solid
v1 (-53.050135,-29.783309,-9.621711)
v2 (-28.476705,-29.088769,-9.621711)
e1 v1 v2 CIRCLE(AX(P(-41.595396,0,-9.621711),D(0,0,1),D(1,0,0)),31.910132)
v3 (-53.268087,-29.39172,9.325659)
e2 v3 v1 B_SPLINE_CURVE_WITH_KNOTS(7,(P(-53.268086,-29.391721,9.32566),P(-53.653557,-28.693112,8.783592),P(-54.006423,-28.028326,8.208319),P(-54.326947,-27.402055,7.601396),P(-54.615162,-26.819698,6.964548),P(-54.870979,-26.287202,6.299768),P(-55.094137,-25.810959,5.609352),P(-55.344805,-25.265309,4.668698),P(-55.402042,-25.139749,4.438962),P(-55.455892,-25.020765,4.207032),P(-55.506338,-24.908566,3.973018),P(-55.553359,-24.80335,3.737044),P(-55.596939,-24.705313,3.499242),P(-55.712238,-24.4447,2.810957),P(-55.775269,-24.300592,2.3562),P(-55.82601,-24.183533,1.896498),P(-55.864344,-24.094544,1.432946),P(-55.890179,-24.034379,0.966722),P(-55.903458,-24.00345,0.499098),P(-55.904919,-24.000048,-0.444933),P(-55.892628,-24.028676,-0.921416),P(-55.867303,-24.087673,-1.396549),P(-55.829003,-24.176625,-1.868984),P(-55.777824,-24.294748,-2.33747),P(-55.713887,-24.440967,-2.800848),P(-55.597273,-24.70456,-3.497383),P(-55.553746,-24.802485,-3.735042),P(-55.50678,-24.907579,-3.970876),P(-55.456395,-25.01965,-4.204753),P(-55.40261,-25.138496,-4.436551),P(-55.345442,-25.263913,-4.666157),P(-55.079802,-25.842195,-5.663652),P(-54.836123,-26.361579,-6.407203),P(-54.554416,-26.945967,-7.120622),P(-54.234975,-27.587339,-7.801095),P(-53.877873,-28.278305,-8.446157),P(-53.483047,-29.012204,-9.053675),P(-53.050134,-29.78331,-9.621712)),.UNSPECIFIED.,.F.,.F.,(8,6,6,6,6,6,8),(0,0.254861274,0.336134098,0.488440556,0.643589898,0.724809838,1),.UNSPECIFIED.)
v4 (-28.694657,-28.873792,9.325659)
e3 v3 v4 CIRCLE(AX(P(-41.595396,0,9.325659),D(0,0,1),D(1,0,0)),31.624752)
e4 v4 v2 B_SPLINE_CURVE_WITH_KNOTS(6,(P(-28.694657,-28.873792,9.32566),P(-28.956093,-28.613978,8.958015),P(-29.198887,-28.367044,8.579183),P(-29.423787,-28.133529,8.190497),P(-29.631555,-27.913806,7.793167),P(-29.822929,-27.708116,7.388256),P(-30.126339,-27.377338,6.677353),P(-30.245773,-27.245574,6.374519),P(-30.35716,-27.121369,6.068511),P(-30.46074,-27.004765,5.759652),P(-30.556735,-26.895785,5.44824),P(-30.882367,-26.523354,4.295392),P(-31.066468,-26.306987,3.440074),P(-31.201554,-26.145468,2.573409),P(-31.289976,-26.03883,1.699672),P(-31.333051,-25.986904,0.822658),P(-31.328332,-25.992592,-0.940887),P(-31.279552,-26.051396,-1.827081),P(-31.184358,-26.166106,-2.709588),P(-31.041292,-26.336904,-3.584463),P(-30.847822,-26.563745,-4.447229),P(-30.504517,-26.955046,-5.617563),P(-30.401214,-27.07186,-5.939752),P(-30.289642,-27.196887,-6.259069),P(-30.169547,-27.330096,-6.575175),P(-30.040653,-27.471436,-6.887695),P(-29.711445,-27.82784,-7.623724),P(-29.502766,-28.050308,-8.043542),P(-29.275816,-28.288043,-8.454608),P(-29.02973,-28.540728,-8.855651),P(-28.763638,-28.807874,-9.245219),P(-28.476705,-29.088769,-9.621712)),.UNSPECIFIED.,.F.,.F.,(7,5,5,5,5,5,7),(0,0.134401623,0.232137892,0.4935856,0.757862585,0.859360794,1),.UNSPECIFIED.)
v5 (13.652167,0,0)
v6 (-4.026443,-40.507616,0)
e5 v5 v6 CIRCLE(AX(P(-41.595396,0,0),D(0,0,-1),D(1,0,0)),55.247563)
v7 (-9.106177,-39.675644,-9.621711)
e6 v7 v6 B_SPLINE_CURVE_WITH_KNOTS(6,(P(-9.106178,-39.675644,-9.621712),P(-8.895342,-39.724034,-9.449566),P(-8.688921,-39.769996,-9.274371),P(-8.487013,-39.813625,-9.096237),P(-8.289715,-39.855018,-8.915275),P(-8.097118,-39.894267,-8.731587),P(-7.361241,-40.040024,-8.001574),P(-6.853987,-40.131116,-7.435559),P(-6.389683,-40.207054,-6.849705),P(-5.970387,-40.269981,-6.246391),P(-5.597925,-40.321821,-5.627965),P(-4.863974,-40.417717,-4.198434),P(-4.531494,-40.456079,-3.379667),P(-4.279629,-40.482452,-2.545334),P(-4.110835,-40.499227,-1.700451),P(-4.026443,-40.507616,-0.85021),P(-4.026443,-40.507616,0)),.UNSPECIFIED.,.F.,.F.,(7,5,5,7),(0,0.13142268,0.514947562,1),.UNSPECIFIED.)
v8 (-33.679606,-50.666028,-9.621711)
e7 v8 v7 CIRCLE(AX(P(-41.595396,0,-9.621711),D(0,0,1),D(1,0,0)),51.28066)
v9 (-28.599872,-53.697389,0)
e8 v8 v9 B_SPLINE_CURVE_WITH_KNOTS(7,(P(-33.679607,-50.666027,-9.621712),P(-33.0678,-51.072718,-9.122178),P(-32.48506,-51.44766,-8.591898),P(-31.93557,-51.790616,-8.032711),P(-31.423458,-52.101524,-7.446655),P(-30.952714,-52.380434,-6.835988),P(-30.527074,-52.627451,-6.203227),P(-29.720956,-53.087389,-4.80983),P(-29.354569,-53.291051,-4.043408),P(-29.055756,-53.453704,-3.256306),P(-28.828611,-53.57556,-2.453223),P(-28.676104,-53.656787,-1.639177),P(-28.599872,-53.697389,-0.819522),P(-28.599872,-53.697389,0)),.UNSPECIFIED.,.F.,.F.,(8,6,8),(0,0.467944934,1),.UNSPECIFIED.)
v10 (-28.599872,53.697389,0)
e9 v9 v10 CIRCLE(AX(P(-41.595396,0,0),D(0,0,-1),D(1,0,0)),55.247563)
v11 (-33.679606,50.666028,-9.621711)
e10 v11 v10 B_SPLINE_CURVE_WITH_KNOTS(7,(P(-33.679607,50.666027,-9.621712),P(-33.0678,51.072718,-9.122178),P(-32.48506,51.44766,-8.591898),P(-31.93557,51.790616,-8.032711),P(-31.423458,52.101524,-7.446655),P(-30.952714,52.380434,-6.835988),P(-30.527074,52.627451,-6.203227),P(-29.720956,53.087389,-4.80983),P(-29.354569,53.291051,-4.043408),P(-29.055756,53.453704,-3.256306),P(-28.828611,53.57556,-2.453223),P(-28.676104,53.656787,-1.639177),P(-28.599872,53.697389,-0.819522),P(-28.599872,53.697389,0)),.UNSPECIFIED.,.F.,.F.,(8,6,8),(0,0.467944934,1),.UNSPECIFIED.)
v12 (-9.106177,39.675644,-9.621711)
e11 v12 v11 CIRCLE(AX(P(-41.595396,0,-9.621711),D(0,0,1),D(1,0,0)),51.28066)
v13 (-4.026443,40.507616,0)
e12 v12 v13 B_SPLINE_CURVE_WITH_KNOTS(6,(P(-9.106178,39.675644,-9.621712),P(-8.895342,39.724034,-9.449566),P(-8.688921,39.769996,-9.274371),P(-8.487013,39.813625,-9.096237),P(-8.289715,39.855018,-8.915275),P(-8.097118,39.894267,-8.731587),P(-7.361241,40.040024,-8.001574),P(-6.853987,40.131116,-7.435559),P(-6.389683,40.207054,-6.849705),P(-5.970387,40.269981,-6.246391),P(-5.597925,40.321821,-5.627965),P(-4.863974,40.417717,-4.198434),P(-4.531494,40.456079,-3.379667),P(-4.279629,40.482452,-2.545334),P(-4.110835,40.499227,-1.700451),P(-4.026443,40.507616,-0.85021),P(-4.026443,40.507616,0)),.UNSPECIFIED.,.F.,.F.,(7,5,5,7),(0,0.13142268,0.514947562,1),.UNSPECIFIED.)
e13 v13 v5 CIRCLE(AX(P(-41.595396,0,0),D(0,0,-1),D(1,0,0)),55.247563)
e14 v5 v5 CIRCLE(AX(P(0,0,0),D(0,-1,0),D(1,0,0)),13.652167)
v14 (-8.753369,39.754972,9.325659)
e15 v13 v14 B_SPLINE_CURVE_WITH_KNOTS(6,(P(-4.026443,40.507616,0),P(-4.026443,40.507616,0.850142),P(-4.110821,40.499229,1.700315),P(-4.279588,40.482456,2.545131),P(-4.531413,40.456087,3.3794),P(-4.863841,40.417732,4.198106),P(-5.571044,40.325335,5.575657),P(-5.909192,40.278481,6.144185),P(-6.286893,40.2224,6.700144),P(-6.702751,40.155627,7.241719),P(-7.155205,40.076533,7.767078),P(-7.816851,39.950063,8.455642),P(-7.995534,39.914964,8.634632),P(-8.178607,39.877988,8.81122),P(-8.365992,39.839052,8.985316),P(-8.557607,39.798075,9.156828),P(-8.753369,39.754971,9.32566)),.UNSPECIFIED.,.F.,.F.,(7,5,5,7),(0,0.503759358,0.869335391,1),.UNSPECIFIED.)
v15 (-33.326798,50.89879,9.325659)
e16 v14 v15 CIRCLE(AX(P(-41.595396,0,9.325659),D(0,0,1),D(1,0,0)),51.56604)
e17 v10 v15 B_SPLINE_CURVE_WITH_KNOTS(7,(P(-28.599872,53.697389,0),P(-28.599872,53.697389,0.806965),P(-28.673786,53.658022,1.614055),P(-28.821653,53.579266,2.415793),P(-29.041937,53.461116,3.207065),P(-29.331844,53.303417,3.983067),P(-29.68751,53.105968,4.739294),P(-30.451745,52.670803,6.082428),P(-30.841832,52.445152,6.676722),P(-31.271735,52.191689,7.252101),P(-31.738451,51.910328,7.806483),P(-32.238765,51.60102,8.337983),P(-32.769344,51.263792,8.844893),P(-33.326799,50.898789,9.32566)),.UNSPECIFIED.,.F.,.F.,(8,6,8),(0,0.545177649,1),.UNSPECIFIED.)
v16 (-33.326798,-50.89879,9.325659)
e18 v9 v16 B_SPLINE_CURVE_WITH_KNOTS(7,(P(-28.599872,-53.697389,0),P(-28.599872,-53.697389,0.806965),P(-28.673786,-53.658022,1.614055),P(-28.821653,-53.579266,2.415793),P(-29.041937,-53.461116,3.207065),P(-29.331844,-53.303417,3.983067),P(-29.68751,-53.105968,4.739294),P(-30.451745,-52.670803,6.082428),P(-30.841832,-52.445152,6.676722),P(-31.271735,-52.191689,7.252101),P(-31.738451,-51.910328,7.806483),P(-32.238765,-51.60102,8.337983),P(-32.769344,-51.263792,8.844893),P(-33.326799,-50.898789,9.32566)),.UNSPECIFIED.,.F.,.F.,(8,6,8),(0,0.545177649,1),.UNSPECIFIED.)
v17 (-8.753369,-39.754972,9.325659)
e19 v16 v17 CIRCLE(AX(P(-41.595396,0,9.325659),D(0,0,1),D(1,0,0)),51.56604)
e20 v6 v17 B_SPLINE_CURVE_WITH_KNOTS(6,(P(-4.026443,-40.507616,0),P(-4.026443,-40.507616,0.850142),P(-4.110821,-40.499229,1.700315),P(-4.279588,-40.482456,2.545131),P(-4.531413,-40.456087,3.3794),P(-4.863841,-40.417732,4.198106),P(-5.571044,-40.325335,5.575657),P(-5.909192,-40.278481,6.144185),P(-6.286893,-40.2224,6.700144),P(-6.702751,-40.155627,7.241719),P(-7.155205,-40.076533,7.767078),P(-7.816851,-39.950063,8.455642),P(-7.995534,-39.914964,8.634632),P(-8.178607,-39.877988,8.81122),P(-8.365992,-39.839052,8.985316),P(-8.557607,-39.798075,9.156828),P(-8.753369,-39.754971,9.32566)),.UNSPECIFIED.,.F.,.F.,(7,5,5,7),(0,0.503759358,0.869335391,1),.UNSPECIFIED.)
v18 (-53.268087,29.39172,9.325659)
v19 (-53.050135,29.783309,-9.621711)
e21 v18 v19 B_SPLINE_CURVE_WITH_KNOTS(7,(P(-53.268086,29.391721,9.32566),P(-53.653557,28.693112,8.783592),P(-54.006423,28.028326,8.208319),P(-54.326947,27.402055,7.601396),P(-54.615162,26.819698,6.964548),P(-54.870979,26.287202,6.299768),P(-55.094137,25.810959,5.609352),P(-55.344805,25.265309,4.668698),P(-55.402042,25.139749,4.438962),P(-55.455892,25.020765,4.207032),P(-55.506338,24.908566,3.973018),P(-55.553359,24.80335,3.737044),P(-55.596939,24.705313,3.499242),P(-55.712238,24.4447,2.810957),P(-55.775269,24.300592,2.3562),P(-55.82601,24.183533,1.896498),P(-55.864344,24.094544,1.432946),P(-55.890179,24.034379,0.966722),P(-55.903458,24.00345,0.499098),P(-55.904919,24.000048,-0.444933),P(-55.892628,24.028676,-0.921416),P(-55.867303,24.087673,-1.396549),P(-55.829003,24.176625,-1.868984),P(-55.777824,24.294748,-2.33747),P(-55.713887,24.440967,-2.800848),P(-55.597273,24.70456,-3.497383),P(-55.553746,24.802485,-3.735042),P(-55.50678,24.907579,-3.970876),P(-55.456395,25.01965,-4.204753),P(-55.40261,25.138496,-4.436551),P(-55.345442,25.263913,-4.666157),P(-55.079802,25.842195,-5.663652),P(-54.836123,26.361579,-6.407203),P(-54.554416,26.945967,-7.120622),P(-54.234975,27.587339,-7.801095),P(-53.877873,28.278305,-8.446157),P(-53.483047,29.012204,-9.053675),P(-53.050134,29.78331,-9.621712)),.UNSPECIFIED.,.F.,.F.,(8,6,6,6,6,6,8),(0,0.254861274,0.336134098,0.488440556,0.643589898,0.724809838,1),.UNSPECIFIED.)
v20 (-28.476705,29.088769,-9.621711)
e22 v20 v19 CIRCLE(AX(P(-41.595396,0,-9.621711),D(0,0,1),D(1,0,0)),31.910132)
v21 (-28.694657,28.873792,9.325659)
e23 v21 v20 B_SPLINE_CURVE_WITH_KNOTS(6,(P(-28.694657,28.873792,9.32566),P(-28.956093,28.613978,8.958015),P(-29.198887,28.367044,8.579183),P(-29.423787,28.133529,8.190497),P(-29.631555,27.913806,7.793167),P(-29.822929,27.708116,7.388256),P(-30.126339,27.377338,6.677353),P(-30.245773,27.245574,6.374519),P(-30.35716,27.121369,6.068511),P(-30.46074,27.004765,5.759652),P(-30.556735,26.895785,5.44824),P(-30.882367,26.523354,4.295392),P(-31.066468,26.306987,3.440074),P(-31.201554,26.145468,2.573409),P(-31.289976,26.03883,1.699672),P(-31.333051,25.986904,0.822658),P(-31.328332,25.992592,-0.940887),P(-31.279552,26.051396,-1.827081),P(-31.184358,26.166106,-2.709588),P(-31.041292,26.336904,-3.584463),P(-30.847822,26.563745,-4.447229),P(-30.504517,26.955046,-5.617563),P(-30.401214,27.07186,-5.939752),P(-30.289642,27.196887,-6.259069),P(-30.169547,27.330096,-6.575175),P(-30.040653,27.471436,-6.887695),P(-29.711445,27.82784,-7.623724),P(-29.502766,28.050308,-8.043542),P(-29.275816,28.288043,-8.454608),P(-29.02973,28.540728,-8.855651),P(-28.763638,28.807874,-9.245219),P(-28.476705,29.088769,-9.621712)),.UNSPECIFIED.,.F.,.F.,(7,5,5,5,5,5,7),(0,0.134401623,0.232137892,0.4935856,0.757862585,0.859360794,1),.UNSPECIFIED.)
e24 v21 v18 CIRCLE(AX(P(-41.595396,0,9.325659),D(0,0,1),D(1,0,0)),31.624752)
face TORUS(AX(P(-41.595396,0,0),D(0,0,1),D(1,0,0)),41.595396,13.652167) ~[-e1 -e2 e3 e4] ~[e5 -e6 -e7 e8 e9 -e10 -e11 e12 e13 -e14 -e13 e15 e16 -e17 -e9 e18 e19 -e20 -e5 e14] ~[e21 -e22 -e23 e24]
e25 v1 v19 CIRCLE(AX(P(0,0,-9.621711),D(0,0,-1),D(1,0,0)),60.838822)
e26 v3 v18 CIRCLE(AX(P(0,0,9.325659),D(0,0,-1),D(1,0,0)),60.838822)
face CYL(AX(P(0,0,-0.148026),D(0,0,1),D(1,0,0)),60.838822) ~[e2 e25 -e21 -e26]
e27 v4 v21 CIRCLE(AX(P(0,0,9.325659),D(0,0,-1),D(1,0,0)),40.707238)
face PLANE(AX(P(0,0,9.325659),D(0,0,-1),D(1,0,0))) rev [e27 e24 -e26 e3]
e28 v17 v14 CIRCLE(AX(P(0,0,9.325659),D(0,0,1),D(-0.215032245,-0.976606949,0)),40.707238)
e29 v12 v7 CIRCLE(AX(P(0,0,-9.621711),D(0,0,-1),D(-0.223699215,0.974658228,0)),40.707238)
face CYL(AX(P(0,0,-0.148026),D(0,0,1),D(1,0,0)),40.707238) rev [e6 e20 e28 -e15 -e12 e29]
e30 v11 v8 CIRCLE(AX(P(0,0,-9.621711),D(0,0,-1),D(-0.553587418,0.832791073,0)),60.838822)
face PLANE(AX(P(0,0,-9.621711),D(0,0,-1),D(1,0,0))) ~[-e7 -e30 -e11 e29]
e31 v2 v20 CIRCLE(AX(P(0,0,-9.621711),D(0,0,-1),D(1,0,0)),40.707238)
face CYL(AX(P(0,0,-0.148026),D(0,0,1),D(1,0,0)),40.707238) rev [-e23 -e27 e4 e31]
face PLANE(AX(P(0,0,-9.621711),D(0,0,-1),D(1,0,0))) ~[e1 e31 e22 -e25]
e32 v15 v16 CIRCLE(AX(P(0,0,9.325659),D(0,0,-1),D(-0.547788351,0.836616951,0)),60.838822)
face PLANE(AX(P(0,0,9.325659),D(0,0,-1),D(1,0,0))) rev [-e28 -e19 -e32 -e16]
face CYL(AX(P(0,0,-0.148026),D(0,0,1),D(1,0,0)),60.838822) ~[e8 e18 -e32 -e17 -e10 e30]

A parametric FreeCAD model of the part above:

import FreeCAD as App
import Part
import Sketcher
from FreeCAD import Vector
Q = App.Units.Quantity

doc = App.newDocument("Part")
body = doc.addObject("PartDesign::Body", "Body")

# Sketch on XZ plane
sketch1 = body.newObject("Sketcher::SketchObject", "Sketch")
sketch1.AttachmentSupport = (doc.getObject("XZ_Plane"), [""])
sketch1.MapMode = "FlatFace"
sketch1.addGeometry([
    Part.LineSegment(Vector(40.707238, 9.325659, 0), Vector(40.707238, -9.621711, 0)),
    Part.LineSegment(Vector(40.707238, -9.621711, 0), Vector(60.838822, -9.621711, 0)),
    Part.LineSegment(Vector(60.838822, -9.621711, 0), Vector(60.838822, 9.325659, 0)),
    Part.LineSegment(Vector(60.838822, 9.325659, 0), Vector(40.707238, 9.325659, 0)),
], False)
sketch1.addConstraint([
    Sketcher.Constraint("Coincident", 0, 2, 1, 1),
    Sketcher.Constraint("Coincident", 1, 2, 2, 1),
    Sketcher.Constraint("Coincident", 2, 2, 3, 1),
    Sketcher.Constraint("Coincident", 3, 2, 0, 1),
    Sketcher.Constraint("Vertical", 0),
    Sketcher.Constraint("Horizontal", 1),
    Sketcher.Constraint("Vertical", 2),
    Sketcher.Constraint("Horizontal", 3),
    Sketcher.Constraint("DistanceY", 0, 2, 0, 1, Q("18.94737 mm")),
    Sketcher.Constraint("DistanceX", 1, 1, 1, 2, Q("20.131584 mm")),
    Sketcher.Constraint("DistanceY", 0, 2, -1, 1, Q("9.621711 mm")),
    Sketcher.Constraint("DistanceX", -1, 1, 0, 2, Q("40.707238 mm")),
])
revolution = body.newObject("PartDesign::Revolution", "Revolution")
revolution.Profile = sketch1
revolution.ReferenceAxis = (sketch1, ["V_Axis"])
revolution.Angle = 360

# Sketch on XZ plane
sketch2 = body.newObject("Sketcher::SketchObject", "Sketch001")
sketch2.AttachmentSupport = (doc.getObject("XZ_Plane"), [""])
sketch2.MapMode = "FlatFace"
sketch2.addGeometry(Part.Circle(Vector(0, 0, 0), Vector(0, 0, 1), 13.652167), False)
sketch2.addGeometry(Part.LineSegment(Vector(-41.595396, 0, 0), Vector(-41.595396, -10, 0)), True)  # axis
sketch2.addConstraint([
    Sketcher.Constraint("Vertical", 1),
    Sketcher.Constraint("Coincident", 0, 3, -1, 1),
    Sketcher.Constraint("PointOnObject", 1, 1, -1),
    Sketcher.Constraint("DistanceY", 1, 2, 1, 1, Q("10 mm")),
    Sketcher.Constraint("Diameter", 0, Q("27.304334 mm")),
    Sketcher.Constraint("DistanceX", 1, 1, -1, 1, Q("41.595396 mm")),
])
revolution2 = body.newObject("PartDesign::Revolution", "Revolution001")
revolution2.Profile = sketch2
revolution2.ReferenceAxis = (sketch2, ["Axis0"])
revolution2.Angle = 360

doc.recompute()
